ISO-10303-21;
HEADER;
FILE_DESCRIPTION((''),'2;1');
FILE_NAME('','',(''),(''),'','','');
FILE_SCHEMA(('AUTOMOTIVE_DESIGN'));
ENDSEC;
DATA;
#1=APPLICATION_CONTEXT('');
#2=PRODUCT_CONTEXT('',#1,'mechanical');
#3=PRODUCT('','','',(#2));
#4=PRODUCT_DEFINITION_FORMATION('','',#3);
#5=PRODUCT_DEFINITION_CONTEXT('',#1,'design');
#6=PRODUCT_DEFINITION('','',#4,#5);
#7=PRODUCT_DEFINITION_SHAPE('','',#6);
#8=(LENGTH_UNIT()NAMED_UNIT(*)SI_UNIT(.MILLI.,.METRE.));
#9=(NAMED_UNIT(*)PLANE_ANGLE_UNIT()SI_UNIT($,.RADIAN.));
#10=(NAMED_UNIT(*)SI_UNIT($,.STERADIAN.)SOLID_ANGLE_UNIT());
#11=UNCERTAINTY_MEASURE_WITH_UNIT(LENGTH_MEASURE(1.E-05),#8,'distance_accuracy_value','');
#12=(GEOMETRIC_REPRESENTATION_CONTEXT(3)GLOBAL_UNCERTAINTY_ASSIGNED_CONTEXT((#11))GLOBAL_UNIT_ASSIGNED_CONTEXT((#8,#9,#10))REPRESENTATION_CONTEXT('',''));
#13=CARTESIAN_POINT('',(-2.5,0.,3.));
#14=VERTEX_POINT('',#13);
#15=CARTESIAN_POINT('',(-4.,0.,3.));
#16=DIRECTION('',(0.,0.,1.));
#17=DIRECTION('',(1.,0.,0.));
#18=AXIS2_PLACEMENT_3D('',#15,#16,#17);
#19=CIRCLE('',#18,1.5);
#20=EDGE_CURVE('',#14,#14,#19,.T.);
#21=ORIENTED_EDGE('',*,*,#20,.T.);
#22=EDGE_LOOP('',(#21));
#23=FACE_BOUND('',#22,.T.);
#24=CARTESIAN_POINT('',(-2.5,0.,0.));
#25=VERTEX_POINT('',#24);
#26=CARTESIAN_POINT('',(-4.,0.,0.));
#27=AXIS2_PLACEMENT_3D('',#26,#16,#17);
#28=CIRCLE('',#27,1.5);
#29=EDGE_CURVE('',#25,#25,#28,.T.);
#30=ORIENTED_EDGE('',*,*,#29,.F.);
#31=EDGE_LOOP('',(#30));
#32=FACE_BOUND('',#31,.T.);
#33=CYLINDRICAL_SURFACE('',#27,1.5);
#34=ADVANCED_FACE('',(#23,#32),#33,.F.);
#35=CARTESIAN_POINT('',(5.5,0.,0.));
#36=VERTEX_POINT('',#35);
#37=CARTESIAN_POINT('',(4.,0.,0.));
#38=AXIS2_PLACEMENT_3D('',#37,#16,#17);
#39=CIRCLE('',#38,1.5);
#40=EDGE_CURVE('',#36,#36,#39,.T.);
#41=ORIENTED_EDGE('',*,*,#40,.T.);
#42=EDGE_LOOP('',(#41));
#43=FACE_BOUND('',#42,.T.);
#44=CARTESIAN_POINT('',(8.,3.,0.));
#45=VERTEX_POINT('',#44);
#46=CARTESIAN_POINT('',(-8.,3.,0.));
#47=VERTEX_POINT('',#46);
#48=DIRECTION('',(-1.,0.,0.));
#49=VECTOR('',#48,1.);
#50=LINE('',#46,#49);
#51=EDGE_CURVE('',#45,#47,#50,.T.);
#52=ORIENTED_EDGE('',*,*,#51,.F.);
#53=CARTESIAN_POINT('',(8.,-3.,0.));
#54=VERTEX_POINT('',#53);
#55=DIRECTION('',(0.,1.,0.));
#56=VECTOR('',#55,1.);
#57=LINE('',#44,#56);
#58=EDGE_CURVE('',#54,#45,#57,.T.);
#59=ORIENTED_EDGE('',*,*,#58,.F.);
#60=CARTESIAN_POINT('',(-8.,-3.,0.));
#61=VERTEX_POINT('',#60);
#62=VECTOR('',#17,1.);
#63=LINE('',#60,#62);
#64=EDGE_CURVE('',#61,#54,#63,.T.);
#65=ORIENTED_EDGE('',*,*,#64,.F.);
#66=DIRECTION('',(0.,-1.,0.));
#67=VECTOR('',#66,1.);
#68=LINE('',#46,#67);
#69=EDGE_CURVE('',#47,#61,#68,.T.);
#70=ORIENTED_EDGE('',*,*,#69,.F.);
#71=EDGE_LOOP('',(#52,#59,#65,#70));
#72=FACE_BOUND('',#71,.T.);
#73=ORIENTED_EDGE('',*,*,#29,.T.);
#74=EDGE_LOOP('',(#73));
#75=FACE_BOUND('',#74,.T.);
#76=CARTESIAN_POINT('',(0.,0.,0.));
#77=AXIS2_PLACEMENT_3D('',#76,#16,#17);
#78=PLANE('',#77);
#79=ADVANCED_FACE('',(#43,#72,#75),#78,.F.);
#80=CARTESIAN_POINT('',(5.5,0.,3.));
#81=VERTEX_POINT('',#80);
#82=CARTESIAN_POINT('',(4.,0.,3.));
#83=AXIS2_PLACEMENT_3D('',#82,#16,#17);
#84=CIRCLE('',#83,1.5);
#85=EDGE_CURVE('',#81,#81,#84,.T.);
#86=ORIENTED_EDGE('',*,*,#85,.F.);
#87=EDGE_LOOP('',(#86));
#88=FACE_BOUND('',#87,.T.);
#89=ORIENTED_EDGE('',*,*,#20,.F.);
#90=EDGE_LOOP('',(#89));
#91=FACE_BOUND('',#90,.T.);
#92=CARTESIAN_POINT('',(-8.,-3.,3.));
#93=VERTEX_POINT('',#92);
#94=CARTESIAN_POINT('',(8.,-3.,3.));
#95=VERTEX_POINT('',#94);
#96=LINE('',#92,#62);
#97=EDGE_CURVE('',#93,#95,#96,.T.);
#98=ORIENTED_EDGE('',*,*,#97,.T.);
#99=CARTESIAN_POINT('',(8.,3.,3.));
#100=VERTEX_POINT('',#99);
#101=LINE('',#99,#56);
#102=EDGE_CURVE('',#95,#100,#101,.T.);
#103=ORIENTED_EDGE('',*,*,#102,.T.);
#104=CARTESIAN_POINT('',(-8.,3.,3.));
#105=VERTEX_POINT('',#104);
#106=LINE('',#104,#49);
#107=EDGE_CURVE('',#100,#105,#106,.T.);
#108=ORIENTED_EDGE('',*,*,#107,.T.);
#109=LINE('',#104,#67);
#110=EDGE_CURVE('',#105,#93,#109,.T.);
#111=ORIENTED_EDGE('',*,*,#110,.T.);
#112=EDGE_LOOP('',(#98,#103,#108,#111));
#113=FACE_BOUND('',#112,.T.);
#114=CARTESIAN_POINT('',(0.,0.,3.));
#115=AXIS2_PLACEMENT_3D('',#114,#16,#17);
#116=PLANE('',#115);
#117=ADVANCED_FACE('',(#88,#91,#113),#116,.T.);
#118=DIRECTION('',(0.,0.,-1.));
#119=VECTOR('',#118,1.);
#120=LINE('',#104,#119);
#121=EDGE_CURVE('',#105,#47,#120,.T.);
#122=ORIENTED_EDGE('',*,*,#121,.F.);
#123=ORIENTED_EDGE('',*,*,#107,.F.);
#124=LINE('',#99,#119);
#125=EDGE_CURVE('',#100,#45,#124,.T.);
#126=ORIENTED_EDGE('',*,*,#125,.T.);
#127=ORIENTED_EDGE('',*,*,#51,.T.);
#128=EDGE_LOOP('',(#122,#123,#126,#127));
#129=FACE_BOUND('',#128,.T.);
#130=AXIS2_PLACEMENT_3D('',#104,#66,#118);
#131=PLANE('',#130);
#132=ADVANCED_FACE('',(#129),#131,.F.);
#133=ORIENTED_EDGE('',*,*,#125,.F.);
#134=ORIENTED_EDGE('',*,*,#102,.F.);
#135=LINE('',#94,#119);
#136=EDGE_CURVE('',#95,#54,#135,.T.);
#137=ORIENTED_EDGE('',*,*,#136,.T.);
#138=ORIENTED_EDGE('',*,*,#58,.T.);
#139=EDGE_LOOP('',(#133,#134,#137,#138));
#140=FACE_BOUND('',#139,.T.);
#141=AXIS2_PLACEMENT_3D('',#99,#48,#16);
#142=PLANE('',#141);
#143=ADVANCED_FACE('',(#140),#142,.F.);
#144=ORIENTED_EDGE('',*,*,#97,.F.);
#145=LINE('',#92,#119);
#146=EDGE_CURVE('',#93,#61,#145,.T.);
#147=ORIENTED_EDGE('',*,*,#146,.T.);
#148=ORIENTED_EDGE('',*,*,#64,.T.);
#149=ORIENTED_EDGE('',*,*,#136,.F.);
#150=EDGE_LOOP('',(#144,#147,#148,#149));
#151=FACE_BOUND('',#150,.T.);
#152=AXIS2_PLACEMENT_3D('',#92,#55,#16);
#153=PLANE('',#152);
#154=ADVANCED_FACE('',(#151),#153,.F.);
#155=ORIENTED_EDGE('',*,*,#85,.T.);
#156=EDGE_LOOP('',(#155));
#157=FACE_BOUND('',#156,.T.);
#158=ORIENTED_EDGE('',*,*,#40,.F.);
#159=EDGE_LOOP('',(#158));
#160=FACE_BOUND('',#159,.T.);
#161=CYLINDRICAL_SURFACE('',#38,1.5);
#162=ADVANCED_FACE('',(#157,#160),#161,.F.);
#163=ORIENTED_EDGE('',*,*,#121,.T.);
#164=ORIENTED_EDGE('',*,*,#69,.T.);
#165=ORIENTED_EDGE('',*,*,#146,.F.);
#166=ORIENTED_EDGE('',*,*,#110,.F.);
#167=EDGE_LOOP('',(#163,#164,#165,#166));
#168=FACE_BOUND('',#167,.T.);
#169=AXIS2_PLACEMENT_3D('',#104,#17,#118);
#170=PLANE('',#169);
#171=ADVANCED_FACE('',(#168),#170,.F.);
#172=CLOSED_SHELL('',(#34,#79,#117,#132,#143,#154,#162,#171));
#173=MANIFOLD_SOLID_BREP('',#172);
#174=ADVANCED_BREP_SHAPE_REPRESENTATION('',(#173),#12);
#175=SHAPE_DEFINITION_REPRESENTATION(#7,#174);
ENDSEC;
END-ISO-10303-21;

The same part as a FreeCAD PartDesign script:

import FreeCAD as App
import Part
import Sketcher

V = App.Vector

doc = App.newDocument("Part")
body = doc.addObject("PartDesign::Body", "Body")

# Sketch on XY plane
sketch1 = body.newObject("Sketcher::SketchObject", "Sketch")
sketch1.AttachmentSupport = (doc.getObject("XY_Plane"), [""])
sketch1.MapMode = "FlatFace"
sketch1.addGeometry(Part.LineSegment(V(-8, 3, 0), V(-8, -3, 0)), False)
sketch1.addGeometry(Part.LineSegment(V(-8, -3, 0), V(8, -3, 0)), False)
sketch1.addGeometry(Part.LineSegment(V(8, -3, 0), V(8, 3, 0)), False)
sketch1.addGeometry(Part.LineSegment(V(8, 3, 0), V(-8, 3, 0)), False)
sketch1.addConstraint(Sketcher.Constraint("Coincident", 0, 2, 1, 1))
sketch1.addConstraint(Sketcher.Constraint("Coincident", 1, 2, 2, 1))
sketch1.addConstraint(Sketcher.Constraint("Coincident", 2, 2, 3, 1))
sketch1.addConstraint(Sketcher.Constraint("Coincident", 3, 2, 0, 1))
sketch1.addConstraint(Sketcher.Constraint("Vertical", 0))
sketch1.addConstraint(Sketcher.Constraint("Horizontal", 1))
sketch1.addConstraint(Sketcher.Constraint("Vertical", 2))
sketch1.addConstraint(Sketcher.Constraint("Horizontal", 3))
sketch1.addConstraint(Sketcher.Constraint("Symmetric", 0, 2, 2, 2, -1, 1))
sketch1.addConstraint(Sketcher.Constraint("DistanceX", 1, 1, 1, 2, 16.0))
sketch1.addConstraint(Sketcher.Constraint("DistanceY", 0, 2, 0, 1, 6.0))
pad1 = body.newObject("PartDesign::Pad", "Pad")
pad1.Profile = sketch1
pad1.Length = 3

# Sketch on XY plane
sketch2 = body.newObject("Sketcher::SketchObject", "Sketch001")
sketch2.AttachmentSupport = (doc.getObject("XY_Plane"), [""])
sketch2.MapMode = "FlatFace"
sketch2.AttachmentOffset = App.Placement(V(0, 0, 3), App.Rotation())
sketch2.addGeometry(Part.Circle(V(-4, 0, 0), V(0, 0, 1), 1.5), False)
sketch2.addGeometry(Part.Circle(V(4, 0, 0), V(0, 0, 1), 1.5), False)
sketch2.addConstraint(Sketcher.Constraint("Equal", 0, 1))
sketch2.addConstraint(Sketcher.Constraint("Symmetric", 0, 3, 1, 3, -1, 1))
sketch2.addConstraint(Sketcher.Constraint("PointOnObject", 0, 3, -1))
sketch2.addConstraint(Sketcher.Constraint("Diameter", 0, 3.0))
sketch2.addConstraint(Sketcher.Constraint("DistanceX", 0, 3, -1, 1, 4.0))
pocket1 = body.newObject("PartDesign::Pocket", "Pocket")
pocket1.Profile = sketch2
pocket1.Length = 3

doc.recompute()
